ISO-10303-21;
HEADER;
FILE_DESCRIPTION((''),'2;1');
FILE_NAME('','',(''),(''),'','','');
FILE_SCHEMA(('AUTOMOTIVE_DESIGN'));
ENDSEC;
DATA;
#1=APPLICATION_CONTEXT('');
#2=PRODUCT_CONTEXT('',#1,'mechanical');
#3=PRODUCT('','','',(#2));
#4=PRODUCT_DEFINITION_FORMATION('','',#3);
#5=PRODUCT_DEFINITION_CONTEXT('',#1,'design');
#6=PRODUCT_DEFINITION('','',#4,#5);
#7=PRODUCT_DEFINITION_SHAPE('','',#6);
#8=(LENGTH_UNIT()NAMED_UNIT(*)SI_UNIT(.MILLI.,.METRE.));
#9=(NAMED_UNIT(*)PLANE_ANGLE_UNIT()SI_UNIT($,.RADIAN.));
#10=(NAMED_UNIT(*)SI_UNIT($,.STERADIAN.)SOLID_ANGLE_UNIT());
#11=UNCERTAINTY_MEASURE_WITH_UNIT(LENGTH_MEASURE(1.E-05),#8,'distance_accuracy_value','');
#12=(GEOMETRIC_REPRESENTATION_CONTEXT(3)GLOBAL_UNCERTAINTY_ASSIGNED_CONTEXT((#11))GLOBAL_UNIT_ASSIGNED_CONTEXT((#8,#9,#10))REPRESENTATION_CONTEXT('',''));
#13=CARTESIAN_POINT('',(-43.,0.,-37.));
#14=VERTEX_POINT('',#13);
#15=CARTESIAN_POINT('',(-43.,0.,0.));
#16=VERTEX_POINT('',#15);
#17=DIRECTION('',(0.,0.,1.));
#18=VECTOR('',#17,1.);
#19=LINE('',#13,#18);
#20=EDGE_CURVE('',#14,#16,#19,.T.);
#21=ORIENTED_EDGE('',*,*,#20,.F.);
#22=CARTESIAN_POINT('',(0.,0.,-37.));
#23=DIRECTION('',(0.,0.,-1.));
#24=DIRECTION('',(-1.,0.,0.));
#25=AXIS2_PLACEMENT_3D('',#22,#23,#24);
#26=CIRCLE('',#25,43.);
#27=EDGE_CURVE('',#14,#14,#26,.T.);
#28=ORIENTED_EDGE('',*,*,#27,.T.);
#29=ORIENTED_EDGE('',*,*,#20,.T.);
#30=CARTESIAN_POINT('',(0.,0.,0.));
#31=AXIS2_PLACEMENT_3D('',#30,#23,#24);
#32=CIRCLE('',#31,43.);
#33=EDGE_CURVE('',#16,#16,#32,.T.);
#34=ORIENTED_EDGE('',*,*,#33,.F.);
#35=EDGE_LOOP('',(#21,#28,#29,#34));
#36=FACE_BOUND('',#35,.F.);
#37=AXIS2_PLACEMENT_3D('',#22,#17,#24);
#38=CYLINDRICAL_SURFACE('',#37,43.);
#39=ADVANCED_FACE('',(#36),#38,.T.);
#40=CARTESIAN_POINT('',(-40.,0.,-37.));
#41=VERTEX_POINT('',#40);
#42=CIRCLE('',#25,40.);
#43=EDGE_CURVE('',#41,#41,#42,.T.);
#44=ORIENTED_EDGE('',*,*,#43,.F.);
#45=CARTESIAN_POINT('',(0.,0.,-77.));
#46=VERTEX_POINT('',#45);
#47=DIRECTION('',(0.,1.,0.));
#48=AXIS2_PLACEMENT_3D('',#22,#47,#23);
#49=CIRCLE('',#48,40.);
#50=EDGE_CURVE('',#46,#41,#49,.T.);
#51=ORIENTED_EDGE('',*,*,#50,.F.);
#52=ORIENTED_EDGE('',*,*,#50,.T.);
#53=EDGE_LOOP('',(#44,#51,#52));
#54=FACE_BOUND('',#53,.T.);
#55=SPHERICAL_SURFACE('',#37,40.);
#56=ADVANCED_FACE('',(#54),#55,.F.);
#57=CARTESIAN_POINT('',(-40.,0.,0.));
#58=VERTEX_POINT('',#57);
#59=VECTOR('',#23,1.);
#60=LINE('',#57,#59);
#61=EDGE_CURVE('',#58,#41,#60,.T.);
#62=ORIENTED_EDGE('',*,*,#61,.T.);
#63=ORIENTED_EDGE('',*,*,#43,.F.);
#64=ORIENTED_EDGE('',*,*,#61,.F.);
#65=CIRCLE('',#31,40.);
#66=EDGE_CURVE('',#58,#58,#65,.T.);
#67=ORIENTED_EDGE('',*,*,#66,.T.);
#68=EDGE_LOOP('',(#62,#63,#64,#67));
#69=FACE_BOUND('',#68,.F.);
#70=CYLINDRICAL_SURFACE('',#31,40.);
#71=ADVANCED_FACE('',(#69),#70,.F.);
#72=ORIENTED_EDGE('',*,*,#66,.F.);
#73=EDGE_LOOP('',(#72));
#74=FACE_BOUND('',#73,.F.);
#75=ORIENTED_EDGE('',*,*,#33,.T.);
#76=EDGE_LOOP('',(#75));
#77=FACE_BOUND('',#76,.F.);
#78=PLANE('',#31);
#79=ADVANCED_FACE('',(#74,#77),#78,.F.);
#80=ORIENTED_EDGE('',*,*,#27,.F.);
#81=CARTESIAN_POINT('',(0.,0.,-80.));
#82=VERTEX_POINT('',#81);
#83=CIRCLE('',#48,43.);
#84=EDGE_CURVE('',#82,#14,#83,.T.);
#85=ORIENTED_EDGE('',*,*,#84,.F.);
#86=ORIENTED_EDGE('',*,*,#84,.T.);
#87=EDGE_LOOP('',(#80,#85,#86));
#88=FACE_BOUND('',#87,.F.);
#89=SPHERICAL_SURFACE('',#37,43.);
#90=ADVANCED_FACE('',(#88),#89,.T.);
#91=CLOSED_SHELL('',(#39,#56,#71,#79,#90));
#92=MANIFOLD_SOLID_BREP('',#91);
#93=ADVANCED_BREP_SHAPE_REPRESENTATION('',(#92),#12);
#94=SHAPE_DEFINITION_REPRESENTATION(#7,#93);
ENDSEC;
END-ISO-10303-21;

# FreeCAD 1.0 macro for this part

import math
import FreeCAD as App
import Part
import Sketcher
Q = App.Units.Quantity

doc = App.newDocument("Part")
body = doc.addObject("PartDesign::Body", "Body")

sketch1 = body.newObject("Sketcher::SketchObject", "Sketch")
sketch1.AttachmentSupport = (doc.getObject("XZ_Plane"), [""])
sketch1.MapMode = "FlatFace"
sketch1.addGeometry([
    Part.ArcOfCircle(Part.Circle(App.Vector(0, -37, 0), App.Vector(0, 0, 1), 40), math.radians(180), math.radians(270)),
    Part.LineSegment(App.Vector(0, -77, 0), App.Vector(0, -80, 0)),
    Part.ArcOfCircle(Part.Circle(App.Vector(0, -37, 0), App.Vector(0, 0, 1), 43), math.radians(180), math.radians(270)),
    Part.LineSegment(App.Vector(-43, -37, 0), App.Vector(-43, 0, 0)),
    Part.LineSegment(App.Vector(-43, 0, 0), App.Vector(-40, 0, 0)),
    Part.LineSegment(App.Vector(-40, 0, 0), App.Vector(-40, -37, 0)),
], False)
sketch1.addConstraint([
    Sketcher.Constraint("Coincident", 0, 2, 1, 1),
    Sketcher.Constraint("Coincident", 1, 2, 2, 2),
    Sketcher.Constraint("Tangent", 2, 1, 3, 1),
    Sketcher.Constraint("Coincident", 3, 2, 4, 1),
    Sketcher.Constraint("Coincident", 4, 2, 5, 1),
    Sketcher.Constraint("Tangent", 5, 2, 0, 1),
    Sketcher.Constraint("Vertical", 1),
    Sketcher.Constraint("Vertical", 3),
    Sketcher.Constraint("Horizontal", 4),
    Sketcher.Constraint("Vertical", 5),
    Sketcher.Constraint("Coincident", 2, 3, 0, 3),
    Sketcher.Constraint("PointOnObject", 0, 3, -2),
    Sketcher.Constraint("PointOnObject", 0, 2, -2),
    Sketcher.Constraint("PointOnObject", 3, 2, -1),
    Sketcher.Constraint("Radius", 0, Q("40 mm")),
    Sketcher.Constraint("DistanceX", 4, 1, 4, 2, Q("3 mm")),
    Sketcher.Constraint("DistanceY", 1, 2, -1, 1, Q("80 mm")),
])
revolution = body.newObject("PartDesign::Revolution", "Revolution")
revolution.Profile = sketch1
revolution.ReferenceAxis = (sketch1, ["V_Axis"])
revolution.Angle = 360

doc.recompute()
